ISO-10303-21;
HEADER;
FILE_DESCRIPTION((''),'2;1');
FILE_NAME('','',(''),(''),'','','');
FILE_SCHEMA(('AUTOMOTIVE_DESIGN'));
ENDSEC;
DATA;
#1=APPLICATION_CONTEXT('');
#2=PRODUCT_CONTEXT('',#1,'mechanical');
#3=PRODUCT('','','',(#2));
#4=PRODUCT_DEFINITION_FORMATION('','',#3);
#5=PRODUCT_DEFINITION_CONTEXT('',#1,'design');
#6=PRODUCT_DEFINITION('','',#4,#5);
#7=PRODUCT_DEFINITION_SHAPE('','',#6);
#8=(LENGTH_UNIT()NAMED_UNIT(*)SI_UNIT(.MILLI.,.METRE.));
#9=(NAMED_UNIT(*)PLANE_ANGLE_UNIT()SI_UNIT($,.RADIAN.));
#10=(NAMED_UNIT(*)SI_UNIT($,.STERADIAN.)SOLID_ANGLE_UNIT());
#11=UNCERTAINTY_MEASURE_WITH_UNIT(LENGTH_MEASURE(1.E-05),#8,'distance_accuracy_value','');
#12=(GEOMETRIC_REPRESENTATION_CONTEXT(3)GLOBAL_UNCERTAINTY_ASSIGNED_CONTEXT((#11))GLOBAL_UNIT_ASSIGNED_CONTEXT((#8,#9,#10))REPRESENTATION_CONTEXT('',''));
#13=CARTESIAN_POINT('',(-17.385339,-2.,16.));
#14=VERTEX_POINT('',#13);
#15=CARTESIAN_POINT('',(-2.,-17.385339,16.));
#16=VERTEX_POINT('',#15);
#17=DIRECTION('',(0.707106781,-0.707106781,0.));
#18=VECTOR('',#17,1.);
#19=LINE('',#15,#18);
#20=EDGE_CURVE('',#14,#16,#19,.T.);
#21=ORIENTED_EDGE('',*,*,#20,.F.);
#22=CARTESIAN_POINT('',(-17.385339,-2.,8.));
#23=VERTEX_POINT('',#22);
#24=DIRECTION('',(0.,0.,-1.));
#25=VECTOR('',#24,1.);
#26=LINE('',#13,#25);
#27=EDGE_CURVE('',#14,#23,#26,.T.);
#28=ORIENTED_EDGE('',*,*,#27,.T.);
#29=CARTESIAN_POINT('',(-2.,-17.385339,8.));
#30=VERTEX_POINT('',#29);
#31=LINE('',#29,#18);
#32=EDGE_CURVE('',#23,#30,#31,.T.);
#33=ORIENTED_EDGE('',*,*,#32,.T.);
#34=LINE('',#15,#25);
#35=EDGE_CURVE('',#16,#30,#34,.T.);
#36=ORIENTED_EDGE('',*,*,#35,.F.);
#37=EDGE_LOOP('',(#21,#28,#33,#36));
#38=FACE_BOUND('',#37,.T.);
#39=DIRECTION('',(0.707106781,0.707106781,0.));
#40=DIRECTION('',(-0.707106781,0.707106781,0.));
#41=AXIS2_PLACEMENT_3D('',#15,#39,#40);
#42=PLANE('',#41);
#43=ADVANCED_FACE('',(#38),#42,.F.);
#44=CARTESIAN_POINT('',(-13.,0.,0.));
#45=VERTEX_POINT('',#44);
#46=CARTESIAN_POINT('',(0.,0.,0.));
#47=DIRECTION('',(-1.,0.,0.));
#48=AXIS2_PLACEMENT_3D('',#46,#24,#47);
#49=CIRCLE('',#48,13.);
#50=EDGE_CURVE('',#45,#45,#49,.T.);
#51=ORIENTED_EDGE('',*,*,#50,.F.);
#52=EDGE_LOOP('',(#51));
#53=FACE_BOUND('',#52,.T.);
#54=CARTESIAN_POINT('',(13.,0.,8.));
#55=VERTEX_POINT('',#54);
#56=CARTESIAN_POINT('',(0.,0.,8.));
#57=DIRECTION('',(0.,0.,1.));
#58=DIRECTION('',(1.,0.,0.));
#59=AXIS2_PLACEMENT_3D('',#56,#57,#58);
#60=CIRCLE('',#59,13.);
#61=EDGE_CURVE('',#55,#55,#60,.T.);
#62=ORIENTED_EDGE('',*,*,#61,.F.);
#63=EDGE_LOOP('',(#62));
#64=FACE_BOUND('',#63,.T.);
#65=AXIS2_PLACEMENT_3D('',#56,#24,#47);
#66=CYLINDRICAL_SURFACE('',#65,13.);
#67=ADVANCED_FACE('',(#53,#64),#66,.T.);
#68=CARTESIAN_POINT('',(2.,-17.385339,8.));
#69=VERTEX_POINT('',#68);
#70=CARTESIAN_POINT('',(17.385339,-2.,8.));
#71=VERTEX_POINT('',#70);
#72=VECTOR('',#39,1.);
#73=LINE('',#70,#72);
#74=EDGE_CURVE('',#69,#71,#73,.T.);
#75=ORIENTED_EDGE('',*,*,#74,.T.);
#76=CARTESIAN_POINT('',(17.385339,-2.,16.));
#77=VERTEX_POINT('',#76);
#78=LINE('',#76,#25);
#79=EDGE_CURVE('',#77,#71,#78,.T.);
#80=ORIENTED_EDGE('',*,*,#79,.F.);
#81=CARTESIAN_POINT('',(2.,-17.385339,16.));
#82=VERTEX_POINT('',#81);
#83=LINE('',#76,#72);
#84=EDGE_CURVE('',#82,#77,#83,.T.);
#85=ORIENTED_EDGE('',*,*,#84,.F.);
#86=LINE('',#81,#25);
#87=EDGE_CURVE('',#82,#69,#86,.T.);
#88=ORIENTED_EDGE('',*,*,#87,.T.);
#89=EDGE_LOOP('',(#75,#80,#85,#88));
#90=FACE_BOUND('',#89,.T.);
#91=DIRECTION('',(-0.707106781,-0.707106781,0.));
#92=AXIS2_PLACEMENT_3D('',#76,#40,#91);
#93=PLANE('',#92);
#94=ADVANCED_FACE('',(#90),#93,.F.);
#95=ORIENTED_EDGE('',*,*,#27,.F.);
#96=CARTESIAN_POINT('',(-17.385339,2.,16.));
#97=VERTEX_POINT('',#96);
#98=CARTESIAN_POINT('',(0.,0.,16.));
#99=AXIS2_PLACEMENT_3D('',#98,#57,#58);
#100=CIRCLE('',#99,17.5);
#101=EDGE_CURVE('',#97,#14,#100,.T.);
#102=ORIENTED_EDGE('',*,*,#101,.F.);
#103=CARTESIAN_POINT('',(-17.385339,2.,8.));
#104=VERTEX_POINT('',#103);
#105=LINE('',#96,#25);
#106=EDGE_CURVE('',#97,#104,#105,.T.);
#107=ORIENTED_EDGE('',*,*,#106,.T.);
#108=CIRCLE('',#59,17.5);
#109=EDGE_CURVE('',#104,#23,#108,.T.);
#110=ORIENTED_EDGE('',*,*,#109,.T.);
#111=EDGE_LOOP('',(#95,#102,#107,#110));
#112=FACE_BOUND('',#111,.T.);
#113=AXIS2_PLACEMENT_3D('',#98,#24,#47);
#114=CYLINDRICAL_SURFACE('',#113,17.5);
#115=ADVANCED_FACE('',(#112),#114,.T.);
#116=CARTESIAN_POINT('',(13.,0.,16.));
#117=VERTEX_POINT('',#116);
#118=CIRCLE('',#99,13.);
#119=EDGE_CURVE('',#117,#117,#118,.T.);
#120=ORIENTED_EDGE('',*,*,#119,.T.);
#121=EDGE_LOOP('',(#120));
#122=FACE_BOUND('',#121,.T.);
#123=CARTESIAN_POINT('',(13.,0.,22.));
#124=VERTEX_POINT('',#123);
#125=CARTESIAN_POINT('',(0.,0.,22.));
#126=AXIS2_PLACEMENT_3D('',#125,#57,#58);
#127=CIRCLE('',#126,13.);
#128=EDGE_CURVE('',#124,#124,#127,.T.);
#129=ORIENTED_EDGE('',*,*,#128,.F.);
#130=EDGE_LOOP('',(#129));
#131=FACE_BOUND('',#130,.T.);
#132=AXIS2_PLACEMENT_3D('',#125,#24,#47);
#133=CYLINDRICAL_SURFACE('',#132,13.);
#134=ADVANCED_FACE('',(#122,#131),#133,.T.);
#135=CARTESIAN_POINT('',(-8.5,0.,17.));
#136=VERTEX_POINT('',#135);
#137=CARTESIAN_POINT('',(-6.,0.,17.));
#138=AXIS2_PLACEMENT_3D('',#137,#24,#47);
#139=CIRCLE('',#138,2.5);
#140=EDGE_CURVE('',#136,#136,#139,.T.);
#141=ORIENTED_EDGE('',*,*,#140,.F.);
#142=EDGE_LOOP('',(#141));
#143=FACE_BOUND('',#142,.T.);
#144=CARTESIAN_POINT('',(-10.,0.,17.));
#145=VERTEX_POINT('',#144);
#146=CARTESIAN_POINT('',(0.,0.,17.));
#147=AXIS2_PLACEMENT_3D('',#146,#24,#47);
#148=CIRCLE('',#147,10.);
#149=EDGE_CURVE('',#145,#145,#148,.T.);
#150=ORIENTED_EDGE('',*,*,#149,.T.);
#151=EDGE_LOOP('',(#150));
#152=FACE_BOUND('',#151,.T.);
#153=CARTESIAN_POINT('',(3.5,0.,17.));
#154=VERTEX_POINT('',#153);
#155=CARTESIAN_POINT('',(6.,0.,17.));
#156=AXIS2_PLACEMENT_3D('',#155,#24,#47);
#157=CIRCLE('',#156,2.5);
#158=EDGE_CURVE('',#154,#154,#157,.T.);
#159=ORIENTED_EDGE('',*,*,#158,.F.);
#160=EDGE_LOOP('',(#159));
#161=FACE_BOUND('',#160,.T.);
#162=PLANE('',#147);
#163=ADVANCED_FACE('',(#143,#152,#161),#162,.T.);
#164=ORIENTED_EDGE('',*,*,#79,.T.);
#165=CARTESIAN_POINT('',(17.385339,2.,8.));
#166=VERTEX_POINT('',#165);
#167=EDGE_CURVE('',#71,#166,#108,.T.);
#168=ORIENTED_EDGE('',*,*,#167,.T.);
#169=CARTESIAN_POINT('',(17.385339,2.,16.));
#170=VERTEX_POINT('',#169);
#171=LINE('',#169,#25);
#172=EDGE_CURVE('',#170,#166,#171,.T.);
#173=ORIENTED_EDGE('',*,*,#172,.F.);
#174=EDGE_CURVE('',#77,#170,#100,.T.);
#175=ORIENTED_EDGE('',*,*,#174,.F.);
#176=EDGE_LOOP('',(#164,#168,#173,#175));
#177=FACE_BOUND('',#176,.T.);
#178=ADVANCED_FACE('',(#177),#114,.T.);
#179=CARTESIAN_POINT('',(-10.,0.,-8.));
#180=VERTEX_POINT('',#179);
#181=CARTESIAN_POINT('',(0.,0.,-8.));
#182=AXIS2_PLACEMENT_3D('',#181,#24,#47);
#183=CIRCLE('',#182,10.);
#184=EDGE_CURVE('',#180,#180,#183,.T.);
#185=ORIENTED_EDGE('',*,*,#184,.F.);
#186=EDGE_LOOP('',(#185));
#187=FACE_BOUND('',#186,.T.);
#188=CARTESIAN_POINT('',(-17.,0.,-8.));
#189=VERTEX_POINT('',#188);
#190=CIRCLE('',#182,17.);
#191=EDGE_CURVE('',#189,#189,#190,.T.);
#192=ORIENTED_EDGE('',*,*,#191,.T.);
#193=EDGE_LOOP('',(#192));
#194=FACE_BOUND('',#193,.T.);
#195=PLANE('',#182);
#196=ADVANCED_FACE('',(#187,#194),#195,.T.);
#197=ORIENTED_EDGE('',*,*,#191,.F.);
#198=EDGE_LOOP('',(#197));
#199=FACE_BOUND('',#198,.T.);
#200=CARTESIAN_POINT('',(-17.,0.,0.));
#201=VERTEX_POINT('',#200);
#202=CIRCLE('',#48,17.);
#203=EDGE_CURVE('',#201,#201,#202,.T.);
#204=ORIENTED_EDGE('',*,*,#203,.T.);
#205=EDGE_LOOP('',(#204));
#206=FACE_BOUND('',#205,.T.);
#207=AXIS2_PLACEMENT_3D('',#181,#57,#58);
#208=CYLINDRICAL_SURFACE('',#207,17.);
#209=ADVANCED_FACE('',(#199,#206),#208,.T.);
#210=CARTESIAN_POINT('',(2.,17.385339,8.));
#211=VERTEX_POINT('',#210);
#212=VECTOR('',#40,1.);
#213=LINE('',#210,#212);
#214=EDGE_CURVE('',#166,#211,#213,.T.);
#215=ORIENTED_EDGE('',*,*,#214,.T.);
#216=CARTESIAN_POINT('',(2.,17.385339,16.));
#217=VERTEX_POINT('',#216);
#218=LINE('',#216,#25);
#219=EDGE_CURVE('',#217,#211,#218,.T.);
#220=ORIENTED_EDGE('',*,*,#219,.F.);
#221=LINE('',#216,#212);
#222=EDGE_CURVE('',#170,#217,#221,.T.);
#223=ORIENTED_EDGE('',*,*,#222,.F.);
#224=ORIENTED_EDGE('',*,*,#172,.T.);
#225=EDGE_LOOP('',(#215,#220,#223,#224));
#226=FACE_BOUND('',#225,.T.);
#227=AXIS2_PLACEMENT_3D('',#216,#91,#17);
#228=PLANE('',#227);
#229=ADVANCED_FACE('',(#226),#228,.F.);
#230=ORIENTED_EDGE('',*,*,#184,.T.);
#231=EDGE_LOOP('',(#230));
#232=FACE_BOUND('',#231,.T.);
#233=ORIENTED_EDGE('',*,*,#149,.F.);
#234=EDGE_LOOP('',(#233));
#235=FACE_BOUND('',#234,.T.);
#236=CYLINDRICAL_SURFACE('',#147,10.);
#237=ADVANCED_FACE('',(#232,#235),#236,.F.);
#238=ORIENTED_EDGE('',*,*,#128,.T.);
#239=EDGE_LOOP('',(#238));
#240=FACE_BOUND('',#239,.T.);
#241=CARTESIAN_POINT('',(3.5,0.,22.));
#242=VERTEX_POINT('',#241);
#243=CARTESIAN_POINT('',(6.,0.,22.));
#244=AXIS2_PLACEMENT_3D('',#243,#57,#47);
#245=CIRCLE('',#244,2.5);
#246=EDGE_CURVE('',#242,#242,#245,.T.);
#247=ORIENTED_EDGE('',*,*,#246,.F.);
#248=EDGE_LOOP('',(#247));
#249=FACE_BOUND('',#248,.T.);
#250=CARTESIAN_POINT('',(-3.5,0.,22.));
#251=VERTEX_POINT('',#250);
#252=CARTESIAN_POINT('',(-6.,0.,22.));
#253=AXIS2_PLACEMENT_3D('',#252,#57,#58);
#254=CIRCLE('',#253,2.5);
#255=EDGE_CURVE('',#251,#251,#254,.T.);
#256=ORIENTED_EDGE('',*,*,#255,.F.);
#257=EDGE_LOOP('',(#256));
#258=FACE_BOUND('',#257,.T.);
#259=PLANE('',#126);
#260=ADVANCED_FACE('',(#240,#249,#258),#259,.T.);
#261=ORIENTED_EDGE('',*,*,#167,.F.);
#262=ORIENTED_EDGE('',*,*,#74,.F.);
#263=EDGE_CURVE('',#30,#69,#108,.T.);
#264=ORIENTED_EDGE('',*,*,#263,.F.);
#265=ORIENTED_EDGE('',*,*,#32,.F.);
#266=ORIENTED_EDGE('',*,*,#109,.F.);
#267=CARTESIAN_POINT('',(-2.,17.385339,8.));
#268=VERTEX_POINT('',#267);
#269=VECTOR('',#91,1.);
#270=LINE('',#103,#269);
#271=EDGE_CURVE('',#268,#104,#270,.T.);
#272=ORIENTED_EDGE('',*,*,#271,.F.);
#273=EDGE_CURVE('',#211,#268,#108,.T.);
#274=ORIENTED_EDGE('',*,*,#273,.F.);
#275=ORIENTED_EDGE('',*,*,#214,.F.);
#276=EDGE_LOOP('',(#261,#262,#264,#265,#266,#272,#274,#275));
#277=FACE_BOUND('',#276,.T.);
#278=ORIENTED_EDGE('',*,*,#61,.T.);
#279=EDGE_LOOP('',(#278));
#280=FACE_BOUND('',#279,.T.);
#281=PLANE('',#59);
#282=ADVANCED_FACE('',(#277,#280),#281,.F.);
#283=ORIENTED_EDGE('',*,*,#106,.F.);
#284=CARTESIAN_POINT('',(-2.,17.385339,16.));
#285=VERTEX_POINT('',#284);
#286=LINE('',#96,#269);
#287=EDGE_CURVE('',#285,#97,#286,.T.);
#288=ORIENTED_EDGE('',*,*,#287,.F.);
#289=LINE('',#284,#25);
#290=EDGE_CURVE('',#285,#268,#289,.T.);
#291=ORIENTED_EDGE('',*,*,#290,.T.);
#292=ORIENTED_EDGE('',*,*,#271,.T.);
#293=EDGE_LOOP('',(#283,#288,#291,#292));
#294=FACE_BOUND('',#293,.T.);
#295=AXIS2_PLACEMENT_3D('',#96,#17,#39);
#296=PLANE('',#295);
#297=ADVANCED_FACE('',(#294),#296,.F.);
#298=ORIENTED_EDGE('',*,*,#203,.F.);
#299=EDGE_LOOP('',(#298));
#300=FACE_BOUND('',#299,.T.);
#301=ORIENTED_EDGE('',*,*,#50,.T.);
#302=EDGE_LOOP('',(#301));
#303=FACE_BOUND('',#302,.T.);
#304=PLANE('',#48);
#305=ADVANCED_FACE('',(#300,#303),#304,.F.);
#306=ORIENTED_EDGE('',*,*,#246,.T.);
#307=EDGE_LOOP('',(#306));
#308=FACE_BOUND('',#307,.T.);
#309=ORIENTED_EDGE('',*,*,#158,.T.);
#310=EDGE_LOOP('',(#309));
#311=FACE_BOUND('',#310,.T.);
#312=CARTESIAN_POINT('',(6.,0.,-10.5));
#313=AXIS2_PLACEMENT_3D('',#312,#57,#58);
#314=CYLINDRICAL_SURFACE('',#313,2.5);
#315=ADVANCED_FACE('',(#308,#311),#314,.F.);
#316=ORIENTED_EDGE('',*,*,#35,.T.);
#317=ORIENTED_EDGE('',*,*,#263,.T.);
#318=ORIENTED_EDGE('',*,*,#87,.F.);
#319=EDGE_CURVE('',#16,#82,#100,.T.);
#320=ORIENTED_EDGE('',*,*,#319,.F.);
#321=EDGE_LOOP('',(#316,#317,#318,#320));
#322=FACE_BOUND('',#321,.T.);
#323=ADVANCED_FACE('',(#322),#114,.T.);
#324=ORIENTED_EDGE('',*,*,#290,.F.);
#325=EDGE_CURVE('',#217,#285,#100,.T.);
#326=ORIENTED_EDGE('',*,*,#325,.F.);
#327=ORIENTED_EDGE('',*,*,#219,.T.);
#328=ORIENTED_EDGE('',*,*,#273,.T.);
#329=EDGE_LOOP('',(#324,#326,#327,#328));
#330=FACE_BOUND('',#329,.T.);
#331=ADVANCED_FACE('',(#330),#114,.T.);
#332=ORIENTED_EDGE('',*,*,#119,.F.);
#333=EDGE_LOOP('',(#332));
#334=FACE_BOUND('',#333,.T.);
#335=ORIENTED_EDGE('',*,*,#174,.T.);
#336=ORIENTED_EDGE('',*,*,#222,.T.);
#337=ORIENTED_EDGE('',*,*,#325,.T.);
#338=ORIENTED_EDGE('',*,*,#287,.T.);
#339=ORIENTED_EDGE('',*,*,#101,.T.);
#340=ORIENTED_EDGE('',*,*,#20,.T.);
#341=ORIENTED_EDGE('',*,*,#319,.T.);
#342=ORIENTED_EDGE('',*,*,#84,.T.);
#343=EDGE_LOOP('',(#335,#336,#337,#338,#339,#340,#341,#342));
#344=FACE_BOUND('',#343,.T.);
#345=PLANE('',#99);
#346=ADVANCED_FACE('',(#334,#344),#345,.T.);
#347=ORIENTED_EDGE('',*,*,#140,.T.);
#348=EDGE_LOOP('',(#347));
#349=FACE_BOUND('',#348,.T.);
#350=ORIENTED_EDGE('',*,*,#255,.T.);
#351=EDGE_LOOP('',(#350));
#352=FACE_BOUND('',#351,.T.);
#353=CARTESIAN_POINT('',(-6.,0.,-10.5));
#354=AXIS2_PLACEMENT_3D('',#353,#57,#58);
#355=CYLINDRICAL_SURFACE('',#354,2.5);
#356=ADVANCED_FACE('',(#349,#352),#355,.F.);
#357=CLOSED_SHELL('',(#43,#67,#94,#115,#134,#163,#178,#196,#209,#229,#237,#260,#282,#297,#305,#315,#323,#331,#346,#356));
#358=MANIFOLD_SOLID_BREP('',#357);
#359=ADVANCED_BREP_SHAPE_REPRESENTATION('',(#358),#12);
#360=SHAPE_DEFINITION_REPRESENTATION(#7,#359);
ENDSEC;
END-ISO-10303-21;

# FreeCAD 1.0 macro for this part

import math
import FreeCAD as App
import Part
import Sketcher

V = App.Vector
Q = App.Units.Quantity

doc = App.newDocument("Part")
body = doc.addObject("PartDesign::Body", "Body")

# Sketch on XY plane
sketch1 = body.newObject("Sketcher::SketchObject", "Sketch")
sketch1.AttachmentSupport = (doc.getObject("XY_Plane"), [""])
sketch1.MapMode = "FlatFace"
sketch1.addGeometry(Part.Circle(V(0, 0, 0), V(0, 0, 1), 13), False)
sketch1.addConstraint([
    Sketcher.Constraint("Coincident", 0, 3, -1, 1),
    Sketcher.Constraint("Diameter", 0, Q("26 mm")),
])
pad1 = body.newObject("PartDesign::Pad", "Pad")
pad1.Profile = sketch1
pad1.Length = 8

# Sketch on XY plane
sketch2 = body.newObject("Sketcher::SketchObject", "Sketch001")
sketch2.AttachmentSupport = (doc.getObject("XY_Plane"), [""])
sketch2.MapMode = "FlatFace"
sketch2.addGeometry(Part.Circle(V(0, 0, 0), V(0, 0, 1), 17), False)
sketch2.addConstraint([
    Sketcher.Constraint("Coincident", 0, 3, -1, 1),
    Sketcher.Constraint("Diameter", 0, Q("34 mm")),
])
pad2 = body.newObject("PartDesign::Pad", "Pad001")
pad2.Profile = sketch2
pad2.Length = 8
pad2.Reversed = True

# Sketch on XY plane
sketch3 = body.newObject("Sketcher::SketchObject", "Sketch002")
sketch3.AttachmentSupport = (doc.getObject("XY_Plane"), [""])
sketch3.MapMode = "FlatFace"
sketch3.AttachmentOffset = App.Placement(V(0, 0, 8), App.Rotation())
sketch3.addGeometry([
    Part.LineSegment(V(17.4, 2, 0), V(2, 17.4, 0)),  # 0
    Part.ArcOfCircle(Part.Circle(V(0, 0, 0), V(0, 0, 1), 17.5), math.radians(83.44), math.radians(96.56)),  # 1
    Part.LineSegment(V(-2, 17.4, 0), V(-17.4, 2, 0)),  # 2
    Part.ArcOfCircle(Part.Circle(V(0, 0, 0), V(0, 0, 1), 17.5), math.radians(173.44), math.radians(186.56)),  # 3
    Part.LineSegment(V(-17.4, -2, 0), V(-2, -17.4, 0)),  # 4
    Part.ArcOfCircle(Part.Circle(V(0, 0, 0), V(0, 0, 1), 17.5), math.radians(-96.56), math.radians(-83.44)),  # 5
    Part.LineSegment(V(2, -17.4, 0), V(17.4, -2, 0)),  # 6
    Part.ArcOfCircle(Part.Circle(V(0, 0, 0), V(0, 0, 1), 17.5), math.radians(-6.56), math.radians(6.56)),  # 7
], False)
sketch3.addConstraint([
    Sketcher.Constraint("Coincident", 0, 2, 1, 1),
    Sketcher.Constraint("Coincident", 1, 2, 2, 1),
    Sketcher.Constraint("Coincident", 2, 2, 3, 1),
    Sketcher.Constraint("Coincident", 3, 2, 4, 1),
    Sketcher.Constraint("Coincident", 4, 2, 5, 1),
    Sketcher.Constraint("Coincident", 5, 2, 6, 1),
    Sketcher.Constraint("Coincident", 6, 2, 7, 1),
    Sketcher.Constraint("Coincident", 7, 2, 0, 1),
    Sketcher.Constraint("Coincident", 1, 3, -1, 1),
    Sketcher.Constraint("Coincident", 3, 3, -1, 1),
    Sketcher.Constraint("Coincident", 5, 3, -1, 1),
    Sketcher.Constraint("Coincident", 7, 3, -1, 1),
    Sketcher.Constraint("Equal", 1, 3),
    Sketcher.Constraint("Equal", 3, 5),
    Sketcher.Constraint("Equal", 5, 7),
    Sketcher.Constraint("Perpendicular", 0, 2),
    Sketcher.Constraint("Perpendicular", 2, 4),
    Sketcher.Constraint("Perpendicular", 4, 6),
    Sketcher.Constraint("Horizontal", 0, 2, 1, 2),
    Sketcher.Constraint("Horizontal", 4, 2, 5, 2),
    Sketcher.Constraint("Horizontal", 3, 2, 6, 2),
    Sketcher.Constraint("Vertical", 2, 2, 3, 2),
    Sketcher.Constraint("Radius", 1, Q("17.5 mm")),
    Sketcher.Constraint("DistanceX", -1, 1, 0, 2, Q("2 mm")),
])
pad3 = body.newObject("PartDesign::Pad", "Pad002")
pad3.Profile = sketch3
pad3.Length = 8

# Sketch on XY plane
sketch4 = body.newObject("Sketcher::SketchObject", "Sketch003")
sketch4.AttachmentSupport = (doc.getObject("XY_Plane"), [""])
sketch4.MapMode = "FlatFace"
sketch4.AttachmentOffset = App.Placement(V(0, 0, 16), App.Rotation())
sketch4.addGeometry(Part.Circle(V(0, 0, 0), V(0, 0, 1), 13), False)
sketch4.addConstraint([
    Sketcher.Constraint("Coincident", 0, 3, -1, 1),
    Sketcher.Constraint("Diameter", 0, Q("26 mm")),
])
pad4 = body.newObject("PartDesign::Pad", "Pad003")
pad4.Profile = sketch4
pad4.Length = 6

# Sketch on XY plane
sketch5 = body.newObject("Sketcher::SketchObject", "Sketch004")
sketch5.AttachmentSupport = (doc.getObject("XY_Plane"), [""])
sketch5.MapMode = "FlatFace"
sketch5.AttachmentOffset = App.Placement(V(0, 0, -8), App.Rotation())
sketch5.addGeometry(Part.Circle(V(0, 0, 0), V(0, 0, 1), 10), False)
sketch5.addConstraint([
    Sketcher.Constraint("Coincident", 0, 3, -1, 1),
    Sketcher.Constraint("Diameter", 0, Q("20 mm")),
])
pocket1 = body.newObject("PartDesign::Pocket", "Pocket")
pocket1.Profile = sketch5
pocket1.Length = 25
pocket1.Reversed = True

# Sketch on XY plane
sketch6 = body.newObject("Sketcher::SketchObject", "Sketch005")
sketch6.AttachmentSupport = (doc.getObject("XY_Plane"), [""])
sketch6.MapMode = "FlatFace"
sketch6.AttachmentOffset = App.Placement(V(0, 0, 22), App.Rotation())
sketch6.addGeometry(Part.Circle(V(-6, 0, 0), V(0, 0, 1), 2.5), False)
sketch6.addConstraint([
    Sketcher.Constraint("PointOnObject", 0, 3, -1),
    Sketcher.Constraint("Diameter", 0, Q("5 mm")),
    Sketcher.Constraint("DistanceX", 0, 3, -1, 1, Q("6 mm")),
])
pocket2 = body.newObject("PartDesign::Pocket", "Pocket001")
pocket2.Profile = sketch6
pocket2.Length = 32.5
doc.recompute()

polarpattern = body.newObject("PartDesign::PolarPattern", "PolarPattern")
polarpattern.Originals = [pocket2]
polarpattern.Axis = (doc.getObject("Z_Axis"), [""])
polarpattern.Angle = 360
polarpattern.Occurrences = 2
body.Tip = polarpattern

doc.recompute()
